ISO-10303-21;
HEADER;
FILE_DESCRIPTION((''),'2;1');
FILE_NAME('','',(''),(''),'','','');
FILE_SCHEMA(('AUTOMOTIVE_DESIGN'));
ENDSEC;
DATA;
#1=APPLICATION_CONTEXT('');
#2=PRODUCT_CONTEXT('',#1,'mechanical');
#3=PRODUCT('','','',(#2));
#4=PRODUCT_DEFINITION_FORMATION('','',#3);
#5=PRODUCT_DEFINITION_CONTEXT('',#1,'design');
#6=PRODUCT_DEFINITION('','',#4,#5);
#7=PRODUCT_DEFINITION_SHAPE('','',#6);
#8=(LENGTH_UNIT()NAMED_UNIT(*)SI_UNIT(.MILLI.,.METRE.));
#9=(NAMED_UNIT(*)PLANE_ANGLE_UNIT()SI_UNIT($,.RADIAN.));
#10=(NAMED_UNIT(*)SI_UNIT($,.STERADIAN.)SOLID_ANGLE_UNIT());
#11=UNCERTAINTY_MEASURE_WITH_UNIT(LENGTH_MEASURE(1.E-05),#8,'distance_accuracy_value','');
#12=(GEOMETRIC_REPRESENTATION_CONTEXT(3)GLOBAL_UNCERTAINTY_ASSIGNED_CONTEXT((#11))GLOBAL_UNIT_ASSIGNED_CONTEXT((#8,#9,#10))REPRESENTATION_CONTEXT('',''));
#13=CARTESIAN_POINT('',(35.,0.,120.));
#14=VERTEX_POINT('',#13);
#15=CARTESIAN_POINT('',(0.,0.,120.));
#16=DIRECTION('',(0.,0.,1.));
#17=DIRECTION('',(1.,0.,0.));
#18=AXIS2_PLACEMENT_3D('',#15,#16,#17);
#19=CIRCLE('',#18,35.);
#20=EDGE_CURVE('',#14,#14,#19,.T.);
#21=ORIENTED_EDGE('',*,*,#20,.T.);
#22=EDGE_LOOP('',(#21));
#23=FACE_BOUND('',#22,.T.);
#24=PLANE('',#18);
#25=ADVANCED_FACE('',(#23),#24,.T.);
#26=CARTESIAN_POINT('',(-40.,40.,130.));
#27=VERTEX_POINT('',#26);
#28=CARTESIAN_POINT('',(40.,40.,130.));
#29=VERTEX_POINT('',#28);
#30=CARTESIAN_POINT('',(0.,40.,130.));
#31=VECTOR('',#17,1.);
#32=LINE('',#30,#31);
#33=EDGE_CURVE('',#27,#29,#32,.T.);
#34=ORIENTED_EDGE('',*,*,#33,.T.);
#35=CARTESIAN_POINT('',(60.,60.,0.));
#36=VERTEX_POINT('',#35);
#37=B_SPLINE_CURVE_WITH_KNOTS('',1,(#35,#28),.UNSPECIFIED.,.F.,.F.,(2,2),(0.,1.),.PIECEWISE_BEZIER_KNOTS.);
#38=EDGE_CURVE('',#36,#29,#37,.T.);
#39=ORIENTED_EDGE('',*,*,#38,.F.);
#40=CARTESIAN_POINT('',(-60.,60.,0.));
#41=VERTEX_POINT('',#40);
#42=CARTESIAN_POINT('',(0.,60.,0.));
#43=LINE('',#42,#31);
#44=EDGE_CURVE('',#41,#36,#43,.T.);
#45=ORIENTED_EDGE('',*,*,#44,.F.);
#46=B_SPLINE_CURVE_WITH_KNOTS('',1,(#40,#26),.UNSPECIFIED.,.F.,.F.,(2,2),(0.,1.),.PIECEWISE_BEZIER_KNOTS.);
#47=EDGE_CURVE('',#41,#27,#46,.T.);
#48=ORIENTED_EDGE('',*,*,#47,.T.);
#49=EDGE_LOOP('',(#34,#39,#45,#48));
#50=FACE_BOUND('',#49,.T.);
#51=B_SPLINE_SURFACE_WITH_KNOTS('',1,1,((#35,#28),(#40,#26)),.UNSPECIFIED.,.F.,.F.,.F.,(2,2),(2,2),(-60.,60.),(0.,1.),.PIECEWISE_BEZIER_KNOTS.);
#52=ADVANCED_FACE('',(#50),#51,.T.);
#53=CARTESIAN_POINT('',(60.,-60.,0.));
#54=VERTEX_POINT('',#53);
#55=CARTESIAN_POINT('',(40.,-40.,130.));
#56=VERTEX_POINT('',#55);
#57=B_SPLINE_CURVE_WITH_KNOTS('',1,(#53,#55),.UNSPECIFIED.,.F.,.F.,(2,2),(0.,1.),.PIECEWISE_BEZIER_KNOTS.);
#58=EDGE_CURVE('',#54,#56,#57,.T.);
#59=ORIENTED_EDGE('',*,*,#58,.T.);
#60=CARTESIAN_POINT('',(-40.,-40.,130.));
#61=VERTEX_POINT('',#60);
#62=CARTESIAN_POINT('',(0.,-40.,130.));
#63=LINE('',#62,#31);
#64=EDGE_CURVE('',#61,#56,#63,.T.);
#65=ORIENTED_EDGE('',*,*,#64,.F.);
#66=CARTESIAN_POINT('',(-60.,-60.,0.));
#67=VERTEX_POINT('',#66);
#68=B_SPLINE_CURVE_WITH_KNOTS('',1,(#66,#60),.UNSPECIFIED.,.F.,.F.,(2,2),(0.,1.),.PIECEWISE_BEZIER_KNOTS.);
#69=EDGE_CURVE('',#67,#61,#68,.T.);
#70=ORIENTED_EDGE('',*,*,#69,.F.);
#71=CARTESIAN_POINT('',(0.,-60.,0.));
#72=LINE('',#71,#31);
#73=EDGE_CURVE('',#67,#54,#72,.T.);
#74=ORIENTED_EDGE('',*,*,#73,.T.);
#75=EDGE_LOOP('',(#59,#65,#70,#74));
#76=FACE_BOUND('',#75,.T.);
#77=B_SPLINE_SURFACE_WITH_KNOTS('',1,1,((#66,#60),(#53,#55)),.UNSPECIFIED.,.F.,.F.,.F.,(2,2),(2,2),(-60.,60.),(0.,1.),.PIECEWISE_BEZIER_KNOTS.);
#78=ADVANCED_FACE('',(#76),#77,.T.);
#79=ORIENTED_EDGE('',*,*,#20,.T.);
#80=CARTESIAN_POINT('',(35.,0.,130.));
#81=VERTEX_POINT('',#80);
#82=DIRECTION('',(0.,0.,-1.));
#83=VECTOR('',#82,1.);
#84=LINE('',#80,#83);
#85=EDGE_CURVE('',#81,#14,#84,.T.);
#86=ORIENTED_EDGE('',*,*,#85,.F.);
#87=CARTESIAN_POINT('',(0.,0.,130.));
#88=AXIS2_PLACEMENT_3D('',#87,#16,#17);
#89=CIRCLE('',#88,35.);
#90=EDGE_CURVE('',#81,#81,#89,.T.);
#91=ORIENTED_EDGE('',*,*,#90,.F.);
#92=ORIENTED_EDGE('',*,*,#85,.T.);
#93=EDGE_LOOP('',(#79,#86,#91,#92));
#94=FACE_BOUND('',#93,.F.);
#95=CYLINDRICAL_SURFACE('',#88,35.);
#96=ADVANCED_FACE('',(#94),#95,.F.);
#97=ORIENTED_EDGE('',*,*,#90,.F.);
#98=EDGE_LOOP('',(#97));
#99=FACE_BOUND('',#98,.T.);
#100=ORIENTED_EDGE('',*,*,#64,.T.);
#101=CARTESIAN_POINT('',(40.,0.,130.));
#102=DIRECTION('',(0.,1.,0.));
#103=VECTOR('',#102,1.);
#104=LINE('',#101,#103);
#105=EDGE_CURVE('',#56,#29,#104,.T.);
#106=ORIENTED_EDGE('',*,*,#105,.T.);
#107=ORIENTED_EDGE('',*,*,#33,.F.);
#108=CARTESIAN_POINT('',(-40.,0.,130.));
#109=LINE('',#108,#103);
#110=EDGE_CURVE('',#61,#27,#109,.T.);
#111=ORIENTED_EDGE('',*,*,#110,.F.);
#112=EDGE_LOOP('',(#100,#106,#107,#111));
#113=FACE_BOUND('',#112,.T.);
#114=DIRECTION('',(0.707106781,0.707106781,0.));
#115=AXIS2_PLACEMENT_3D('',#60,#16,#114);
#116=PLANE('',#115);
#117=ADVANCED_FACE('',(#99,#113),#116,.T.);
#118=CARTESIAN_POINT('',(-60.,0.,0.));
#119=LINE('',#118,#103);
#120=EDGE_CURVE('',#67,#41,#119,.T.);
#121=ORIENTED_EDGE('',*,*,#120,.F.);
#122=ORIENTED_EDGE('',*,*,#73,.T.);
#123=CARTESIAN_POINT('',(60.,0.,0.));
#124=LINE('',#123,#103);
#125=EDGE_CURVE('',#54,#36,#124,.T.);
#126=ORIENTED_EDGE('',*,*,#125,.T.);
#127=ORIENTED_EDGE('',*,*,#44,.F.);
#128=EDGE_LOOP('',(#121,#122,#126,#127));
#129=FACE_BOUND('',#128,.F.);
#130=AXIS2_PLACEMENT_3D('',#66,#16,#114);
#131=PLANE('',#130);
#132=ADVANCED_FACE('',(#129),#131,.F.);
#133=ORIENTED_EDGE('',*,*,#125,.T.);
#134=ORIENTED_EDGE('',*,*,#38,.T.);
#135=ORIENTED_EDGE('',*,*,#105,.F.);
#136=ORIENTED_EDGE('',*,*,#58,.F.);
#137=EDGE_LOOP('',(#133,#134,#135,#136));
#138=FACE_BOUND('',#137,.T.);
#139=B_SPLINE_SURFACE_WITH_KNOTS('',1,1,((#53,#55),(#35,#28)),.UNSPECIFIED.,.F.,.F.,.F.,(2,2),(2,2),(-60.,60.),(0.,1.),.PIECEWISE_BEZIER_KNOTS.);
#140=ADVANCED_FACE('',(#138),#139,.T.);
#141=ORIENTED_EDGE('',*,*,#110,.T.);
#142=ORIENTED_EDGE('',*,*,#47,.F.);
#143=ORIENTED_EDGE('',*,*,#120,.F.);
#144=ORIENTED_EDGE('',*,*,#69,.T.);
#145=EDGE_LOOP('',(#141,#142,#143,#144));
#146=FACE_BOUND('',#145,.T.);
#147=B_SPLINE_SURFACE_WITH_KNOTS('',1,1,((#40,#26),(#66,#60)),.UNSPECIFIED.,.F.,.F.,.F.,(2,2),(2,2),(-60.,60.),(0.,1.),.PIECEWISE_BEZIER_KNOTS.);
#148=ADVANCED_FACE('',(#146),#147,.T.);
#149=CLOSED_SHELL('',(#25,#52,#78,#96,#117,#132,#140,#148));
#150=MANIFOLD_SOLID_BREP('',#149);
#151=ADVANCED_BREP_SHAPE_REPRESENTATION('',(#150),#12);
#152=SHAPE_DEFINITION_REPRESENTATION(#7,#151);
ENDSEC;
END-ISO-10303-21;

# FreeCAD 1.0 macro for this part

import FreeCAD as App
import Part
import Sketcher

V = App.Vector
Q = App.Units.Quantity


def add_polygon(sketch, points):
    """Adds a closed chain of lines whose ends are joined by coincident constraints."""
    first, n = sketch.GeometryCount, len(points)
    for a, b in zip(points, points[1:] + points[:1]):
        sketch.addGeometry(Part.LineSegment(App.Vector(*a, 0), App.Vector(*b, 0)), False)
    for i in range(n):
        sketch.addConstraint(Sketcher.Constraint("Coincident", first + i, 2, first + (i + 1) % n, 1))

doc = App.newDocument("Part")
body = doc.addObject("PartDesign::Body", "Body")

sketch1 = body.newObject("Sketcher::SketchObject", "Sketch")
sketch1.AttachmentSupport = (doc.getObject("XY_Plane"), [""])
sketch1.MapMode = "FlatFace"
add_polygon(sketch1, [(-60, 60), (-60, -60), (60, -60), (60, 60)])
sketch1.addConstraint([
    Sketcher.Constraint("Vertical", 0),
    Sketcher.Constraint("Horizontal", 1),
    Sketcher.Constraint("Vertical", 2),
    Sketcher.Constraint("Horizontal", 3),
    Sketcher.Constraint("Symmetric", 0, 2, 2, 2, -1, 1),
    Sketcher.Constraint("Equal", 3, 0),
    Sketcher.Constraint("DistanceX", 1, 1, 1, 2, Q("120 mm")),
])

sketch2 = body.newObject("Sketcher::SketchObject", "Sketch001")
sketch2.AttachmentSupport = (doc.getObject("XY_Plane"), [""])
sketch2.MapMode = "FlatFace"
sketch2.AttachmentOffset = App.Placement(V(0, 0, 130), App.Rotation())
add_polygon(sketch2, [(-40, 40), (-40, -40), (40, -40), (40, 40)])
sketch2.addConstraint([
    Sketcher.Constraint("Vertical", 0),
    Sketcher.Constraint("Horizontal", 1),
    Sketcher.Constraint("Vertical", 2),
    Sketcher.Constraint("Horizontal", 3),
    Sketcher.Constraint("Symmetric", 0, 2, 2, 2, -1, 1),
    Sketcher.Constraint("Equal", 3, 0),
    Sketcher.Constraint("DistanceX", 1, 1, 1, 2, Q("80 mm")),
])

additiveloft = body.newObject("PartDesign::AdditiveLoft", "AdditiveLoft")
additiveloft.Profile = sketch1
additiveloft.Sections = [sketch2]

sketch3 = body.newObject("Sketcher::SketchObject", "Sketch002")
sketch3.AttachmentSupport = (doc.getObject("XY_Plane"), [""])
sketch3.MapMode = "FlatFace"
sketch3.AttachmentOffset = App.Placement(V(0, 0, 130), App.Rotation())
sketch3.addGeometry(Part.Circle(V(0, 0, 0), V(0, 0, 1), 35), False)
sketch3.addConstraint([
    Sketcher.Constraint("Coincident", 0, 3, -1, 1),
    Sketcher.Constraint("Diameter", 0, Q("70 mm")),
])
pocket1 = body.newObject("PartDesign::Pocket", "Pocket")
pocket1.Profile = sketch3
pocket1.Length = 10

doc.recompute()
